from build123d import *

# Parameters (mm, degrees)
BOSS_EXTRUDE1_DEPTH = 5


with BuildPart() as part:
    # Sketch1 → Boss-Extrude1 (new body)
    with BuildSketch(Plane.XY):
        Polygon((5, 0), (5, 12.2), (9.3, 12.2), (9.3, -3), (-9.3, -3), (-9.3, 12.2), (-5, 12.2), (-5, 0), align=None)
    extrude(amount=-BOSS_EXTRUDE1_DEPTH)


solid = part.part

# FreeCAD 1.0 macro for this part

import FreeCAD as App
import Part
import Sketcher

V = App.Vector
Q = App.Units.Quantity


def add_polygon(sketch, points):
    """Adds a closed chain of lines whose ends are joined by coincident constraints."""
    first, n = sketch.GeometryCount, len(points)
    for a, b in zip(points, points[1:] + points[:1]):
        sketch.addGeometry(Part.LineSegment(App.Vector(*a, 0), App.Vector(*b, 0)), False)
    for i in range(n):
        sketch.addConstraint(Sketcher.Constraint("Coincident", first + i, 2, first + (i + 1) % n, 1))

doc = App.newDocument("Part")
body = doc.addObject("PartDesign::Body", "Body")

# Sketch on XY plane
sketch1 = body.newObject("Sketcher::SketchObject", "Sketch")
sketch1.AttachmentSupport = (doc.getObject("XY_Plane"), [""])
sketch1.MapMode = "FlatFace"
add_polygon(sketch1, [(5, 12.2), (5, 0), (-5, 0), (-5, 12.2), (-9.3, 12.2), (-9.3, -3), (9.3, -3), (9.3, 12.2)])  # lines 0-7
sketch1.addConstraint([
    Sketcher.Constraint("Vertical", 0),
    Sketcher.Constraint("Horizontal", 1),
    Sketcher.Constraint("Vertical", 2),
    Sketcher.Constraint("Horizontal", 3),
    Sketcher.Constraint("Vertical", 4),
    Sketcher.Constraint("Horizontal", 5),
    Sketcher.Constraint("Vertical", 6),
    Sketcher.Constraint("Horizontal", 7),
    Sketcher.Constraint("Symmetric", 0, 2, 1, 2, -1, 1),
    Sketcher.Constraint("Symmetric", 3, 2, 6, 2, -2),
    Sketcher.Constraint("DistanceX", 1, 2, 1, 1, Q("10 mm")),
    Sketcher.Constraint("DistanceX", 3, 2, 3, 1, Q("4.3 mm")),
    Sketcher.Constraint("DistanceY", 0, 2, 0, 1, Q("12.2 mm")),
    Sketcher.Constraint("DistanceY", 4, 2, 4, 1, Q("15.2 mm")),
])
pad1 = body.newObject("PartDesign::Pad", "Pad")
pad1.Profile = sketch1
pad1.Length = 5
pad1.Reversed = True

doc.recompute()
